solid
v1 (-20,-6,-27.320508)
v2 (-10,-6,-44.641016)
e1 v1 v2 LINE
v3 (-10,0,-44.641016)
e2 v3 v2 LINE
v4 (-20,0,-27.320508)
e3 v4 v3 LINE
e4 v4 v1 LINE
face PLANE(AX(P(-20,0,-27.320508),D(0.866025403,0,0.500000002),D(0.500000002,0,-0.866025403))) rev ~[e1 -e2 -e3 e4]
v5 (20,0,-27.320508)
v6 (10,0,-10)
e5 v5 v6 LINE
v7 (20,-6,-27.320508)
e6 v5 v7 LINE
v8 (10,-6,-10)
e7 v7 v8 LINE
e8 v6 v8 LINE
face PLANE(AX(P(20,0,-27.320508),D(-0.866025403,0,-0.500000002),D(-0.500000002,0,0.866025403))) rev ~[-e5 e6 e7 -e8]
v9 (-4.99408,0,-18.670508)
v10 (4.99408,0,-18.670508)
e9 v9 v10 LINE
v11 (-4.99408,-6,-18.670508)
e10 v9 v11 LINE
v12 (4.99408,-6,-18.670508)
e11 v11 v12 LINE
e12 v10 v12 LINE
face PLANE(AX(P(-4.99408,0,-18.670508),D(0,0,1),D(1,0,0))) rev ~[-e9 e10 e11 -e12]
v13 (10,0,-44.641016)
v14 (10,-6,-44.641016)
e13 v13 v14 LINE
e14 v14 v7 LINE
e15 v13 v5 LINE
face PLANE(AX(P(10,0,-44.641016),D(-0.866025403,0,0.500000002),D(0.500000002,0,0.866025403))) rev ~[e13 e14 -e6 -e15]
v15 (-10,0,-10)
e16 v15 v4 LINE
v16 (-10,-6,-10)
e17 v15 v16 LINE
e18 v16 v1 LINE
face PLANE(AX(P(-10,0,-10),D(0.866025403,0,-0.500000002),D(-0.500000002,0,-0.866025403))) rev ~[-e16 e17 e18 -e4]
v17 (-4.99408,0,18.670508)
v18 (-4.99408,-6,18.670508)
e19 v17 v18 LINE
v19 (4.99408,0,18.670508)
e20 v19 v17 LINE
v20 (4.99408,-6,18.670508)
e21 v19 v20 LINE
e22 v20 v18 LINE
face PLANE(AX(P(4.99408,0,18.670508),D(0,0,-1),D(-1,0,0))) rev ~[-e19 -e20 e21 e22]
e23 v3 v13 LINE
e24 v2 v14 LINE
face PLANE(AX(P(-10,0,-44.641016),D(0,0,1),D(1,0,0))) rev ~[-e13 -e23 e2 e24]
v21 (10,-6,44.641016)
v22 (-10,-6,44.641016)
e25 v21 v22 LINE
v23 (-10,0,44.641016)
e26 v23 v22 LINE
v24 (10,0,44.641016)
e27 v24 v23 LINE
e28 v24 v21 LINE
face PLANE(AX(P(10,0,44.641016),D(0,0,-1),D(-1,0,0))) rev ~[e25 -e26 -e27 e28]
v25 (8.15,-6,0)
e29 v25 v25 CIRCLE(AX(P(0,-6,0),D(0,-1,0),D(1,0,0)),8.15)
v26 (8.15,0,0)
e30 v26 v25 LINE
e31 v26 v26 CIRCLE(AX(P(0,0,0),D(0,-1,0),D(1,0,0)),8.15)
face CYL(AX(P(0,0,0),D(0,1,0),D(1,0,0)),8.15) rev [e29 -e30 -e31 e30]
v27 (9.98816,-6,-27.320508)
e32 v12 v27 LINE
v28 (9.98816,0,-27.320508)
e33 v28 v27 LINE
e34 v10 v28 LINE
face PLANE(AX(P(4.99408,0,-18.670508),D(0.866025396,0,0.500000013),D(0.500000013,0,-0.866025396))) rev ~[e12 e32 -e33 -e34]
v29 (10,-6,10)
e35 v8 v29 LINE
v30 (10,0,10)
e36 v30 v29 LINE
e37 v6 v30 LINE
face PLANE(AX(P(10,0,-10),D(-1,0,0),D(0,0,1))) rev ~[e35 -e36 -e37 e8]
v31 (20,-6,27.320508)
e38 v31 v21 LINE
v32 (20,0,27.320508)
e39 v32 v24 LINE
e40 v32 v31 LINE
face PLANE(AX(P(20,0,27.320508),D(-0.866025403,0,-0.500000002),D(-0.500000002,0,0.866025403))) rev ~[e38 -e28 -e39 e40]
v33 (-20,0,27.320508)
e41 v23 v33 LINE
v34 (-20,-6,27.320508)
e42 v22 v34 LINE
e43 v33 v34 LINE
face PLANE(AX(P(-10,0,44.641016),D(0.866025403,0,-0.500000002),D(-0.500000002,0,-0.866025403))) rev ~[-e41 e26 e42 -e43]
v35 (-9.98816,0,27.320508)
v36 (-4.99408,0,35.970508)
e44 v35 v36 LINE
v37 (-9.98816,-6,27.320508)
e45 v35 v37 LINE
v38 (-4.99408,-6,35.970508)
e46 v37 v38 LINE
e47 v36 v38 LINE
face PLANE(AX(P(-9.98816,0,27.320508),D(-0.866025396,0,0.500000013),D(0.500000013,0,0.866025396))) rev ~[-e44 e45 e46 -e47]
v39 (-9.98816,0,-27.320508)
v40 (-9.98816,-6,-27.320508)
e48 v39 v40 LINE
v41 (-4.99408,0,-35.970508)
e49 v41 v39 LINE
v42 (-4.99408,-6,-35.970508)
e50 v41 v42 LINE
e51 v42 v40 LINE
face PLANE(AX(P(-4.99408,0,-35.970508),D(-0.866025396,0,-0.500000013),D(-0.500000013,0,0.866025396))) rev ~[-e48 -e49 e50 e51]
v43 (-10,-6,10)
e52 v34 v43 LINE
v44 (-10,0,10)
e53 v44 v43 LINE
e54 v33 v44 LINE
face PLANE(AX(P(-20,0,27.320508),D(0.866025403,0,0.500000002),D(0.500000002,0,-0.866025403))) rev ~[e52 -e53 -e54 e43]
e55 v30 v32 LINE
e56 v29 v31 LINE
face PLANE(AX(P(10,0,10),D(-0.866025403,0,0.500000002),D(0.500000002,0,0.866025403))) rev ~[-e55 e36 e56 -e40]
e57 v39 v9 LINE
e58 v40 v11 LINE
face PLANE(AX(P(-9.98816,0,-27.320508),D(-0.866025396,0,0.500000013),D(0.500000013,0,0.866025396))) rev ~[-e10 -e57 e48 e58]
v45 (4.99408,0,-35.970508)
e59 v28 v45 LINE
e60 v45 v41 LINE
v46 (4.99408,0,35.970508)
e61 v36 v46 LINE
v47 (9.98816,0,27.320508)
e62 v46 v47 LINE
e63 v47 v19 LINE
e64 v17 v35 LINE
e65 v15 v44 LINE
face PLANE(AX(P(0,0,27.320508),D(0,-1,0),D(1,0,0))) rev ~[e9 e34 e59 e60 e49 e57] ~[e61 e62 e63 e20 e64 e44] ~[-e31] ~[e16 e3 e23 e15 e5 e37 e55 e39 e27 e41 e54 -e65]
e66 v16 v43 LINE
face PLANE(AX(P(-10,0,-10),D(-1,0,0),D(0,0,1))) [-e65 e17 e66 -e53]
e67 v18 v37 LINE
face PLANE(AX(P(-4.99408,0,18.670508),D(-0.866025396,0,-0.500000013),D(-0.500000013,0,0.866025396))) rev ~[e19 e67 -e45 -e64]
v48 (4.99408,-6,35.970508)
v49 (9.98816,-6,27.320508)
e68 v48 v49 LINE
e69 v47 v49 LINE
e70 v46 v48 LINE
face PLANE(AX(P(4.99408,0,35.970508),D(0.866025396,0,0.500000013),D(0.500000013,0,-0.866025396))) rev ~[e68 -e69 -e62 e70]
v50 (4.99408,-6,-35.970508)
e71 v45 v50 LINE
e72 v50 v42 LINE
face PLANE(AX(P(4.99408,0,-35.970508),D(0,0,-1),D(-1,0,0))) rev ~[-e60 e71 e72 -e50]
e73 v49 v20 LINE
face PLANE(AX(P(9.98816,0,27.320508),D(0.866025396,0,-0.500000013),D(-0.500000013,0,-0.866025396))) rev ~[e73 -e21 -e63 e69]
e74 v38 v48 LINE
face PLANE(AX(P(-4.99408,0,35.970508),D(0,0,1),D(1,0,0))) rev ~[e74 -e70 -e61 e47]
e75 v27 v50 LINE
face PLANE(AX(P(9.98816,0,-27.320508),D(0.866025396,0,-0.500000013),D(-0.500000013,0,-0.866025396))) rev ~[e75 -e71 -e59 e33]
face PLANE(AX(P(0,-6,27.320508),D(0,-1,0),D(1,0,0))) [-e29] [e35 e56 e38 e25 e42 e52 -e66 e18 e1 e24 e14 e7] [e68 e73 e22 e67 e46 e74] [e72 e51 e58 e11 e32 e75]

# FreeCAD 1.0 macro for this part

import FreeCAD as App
import Part
import Sketcher
Q = App.Units.Quantity

doc = App.newDocument("Part")
params = doc.addObject("Spreadsheet::Sheet", "Params")
for row, (alias, value) in enumerate([
    ("sketch1_diameter", "16.3 mm"),
    ("sketch1_width", "20 mm"),
    ("sketch1_length", "20 mm"),
    ("pad1_length", "6 mm"),
], start=1):
    params.set(f"A{row}", alias)
    params.set(f"B{row}", "=" + value)
    params.setAlias(f"B{row}", alias)

body = doc.addObject("PartDesign::Body", "Body")

sketch1 = body.newObject("Sketcher::SketchObject", "Sketch")
sketch1.AttachmentSupport = (doc.getObject("XZ_Plane"), [""])
sketch1.MapMode = "FlatFace"
sketch1.addGeometry([
    Part.LineSegment(App.Vector(-20, 27, 0), App.Vector(-10, 10, 0)),
    Part.LineSegment(App.Vector(-10, 10, 0), App.Vector(-10, -10, 0)),
    Part.LineSegment(App.Vector(-10, -10, 0), App.Vector(-20, -27, 0)),
    Part.LineSegment(App.Vector(-20, -27, 0), App.Vector(-10, -45, 0)),
    Part.LineSegment(App.Vector(-10, -45, 0), App.Vector(10, -45, 0)),
    Part.LineSegment(App.Vector(10, -45, 0), App.Vector(20, -27, 0)),
    Part.LineSegment(App.Vector(20, -27, 0), App.Vector(10, -10, 0)),
    Part.LineSegment(App.Vector(10, -10, 0), App.Vector(10, 10, 0)),
    Part.LineSegment(App.Vector(10, 10, 0), App.Vector(20, 27, 0)),
    Part.LineSegment(App.Vector(20, 27, 0), App.Vector(10, 45, 0)),
    Part.LineSegment(App.Vector(10, 45, 0), App.Vector(-10, 45, 0)),
    Part.LineSegment(App.Vector(-10, 45, 0), App.Vector(-20, 27, 0)),
    Part.LineSegment(App.Vector(10, -27, 0), App.Vector(5, -36, 0)),
    Part.LineSegment(App.Vector(5, -36, 0), App.Vector(-5, -36, 0)),
    Part.LineSegment(App.Vector(-5, -36, 0), App.Vector(-10, -27, 0)),
    Part.LineSegment(App.Vector(-10, -27, 0), App.Vector(-5, -19, 0)),
    Part.LineSegment(App.Vector(-5, -19, 0), App.Vector(5, -19, 0)),
    Part.LineSegment(App.Vector(5, -19, 0), App.Vector(10, -27, 0)),
    Part.Circle(App.Vector(0, 0, 0), App.Vector(0, 0, 1), 8),
    Part.LineSegment(App.Vector(-5, 36, 0), App.Vector(5, 36, 0)),
    Part.LineSegment(App.Vector(5, 36, 0), App.Vector(10, 27, 0)),
    Part.LineSegment(App.Vector(10, 27, 0), App.Vector(5, 19, 0)),
    Part.LineSegment(App.Vector(5, 19, 0), App.Vector(-5, 19, 0)),
    Part.LineSegment(App.Vector(-5, 19, 0), App.Vector(-10, 27, 0)),
    Part.LineSegment(App.Vector(-10, 27, 0), App.Vector(-5, 36, 0)),
], False)
sketch1.addConstraint([
    Sketcher.Constraint("Coincident", 0, 2, 1, 1),
    Sketcher.Constraint("Coincident", 1, 2, 2, 1),
    Sketcher.Constraint("Coincident", 2, 2, 3, 1),
    Sketcher.Constraint("Coincident", 3, 2, 4, 1),
    Sketcher.Constraint("Coincident", 4, 2, 5, 1),
    Sketcher.Constraint("Coincident", 5, 2, 6, 1),
    Sketcher.Constraint("Coincident", 6, 2, 7, 1),
    Sketcher.Constraint("Coincident", 7, 2, 8, 1),
    Sketcher.Constraint("Coincident", 8, 2, 9, 1),
    Sketcher.Constraint("Coincident", 9, 2, 10, 1),
    Sketcher.Constraint("Coincident", 10, 2, 11, 1),
    Sketcher.Constraint("Coincident", 11, 2, 0, 1),
    Sketcher.Constraint("Coincident", 12, 2, 13, 1),
    Sketcher.Constraint("Coincident", 13, 2, 14, 1),
    Sketcher.Constraint("Coincident", 14, 2, 15, 1),
    Sketcher.Constraint("Coincident", 15, 2, 16, 1),
    Sketcher.Constraint("Coincident", 16, 2, 17, 1),
    Sketcher.Constraint("Coincident", 17, 2, 12, 1),
    Sketcher.Constraint("Coincident", 19, 2, 20, 1),
    Sketcher.Constraint("Coincident", 20, 2, 21, 1),
    Sketcher.Constraint("Coincident", 21, 2, 22, 1),
    Sketcher.Constraint("Coincident", 22, 2, 23, 1),
    Sketcher.Constraint("Coincident", 23, 2, 24, 1),
    Sketcher.Constraint("Coincident", 24, 2, 19, 1),
    Sketcher.Constraint("Vertical", 1),
    Sketcher.Constraint("Horizontal", 4),
    Sketcher.Constraint("Vertical", 7),
    Sketcher.Constraint("Horizontal", 10),
    Sketcher.Constraint("Horizontal", 13),
    Sketcher.Constraint("Horizontal", 16),
    Sketcher.Constraint("Horizontal", 19),
    Sketcher.Constraint("Horizontal", 22),
    Sketcher.Constraint("Coincident", 18, 3, -1, 1),
    Sketcher.Constraint("Symmetric", 0, 2, 6, 2, -1, 1),
    Sketcher.Constraint("Symmetric", 2, 2, 8, 2, -1, 1),
    Sketcher.Constraint("Symmetric", 3, 2, 9, 2, -1, 1),
    Sketcher.Constraint("Symmetric", 5, 2, 11, 2, -1, 1),
    Sketcher.Constraint("Symmetric", 13, 2, 19, 2, -1, 1),
    Sketcher.Constraint("Symmetric", 14, 2, 20, 2, -1, 1),
    Sketcher.Constraint("Symmetric", 15, 2, 21, 2, -1, 1),
    Sketcher.Constraint("Symmetric", 17, 2, 23, 2, -1, 1),
    Sketcher.Constraint("Symmetric", 2, 2, 5, 2, -2),
    Sketcher.Constraint("Symmetric", 14, 2, 17, 2, -2),
    Sketcher.Constraint("Parallel", 0, 3),
    Sketcher.Constraint("Parallel", 2, 5),
    Sketcher.Constraint("Parallel", 5, 8),
    Sketcher.Constraint("Parallel", 8, 11),
    Sketcher.Constraint("Parallel", 11, 12),
    Sketcher.Constraint("Parallel", 9, 14),
    Sketcher.Constraint("Parallel", 12, 15),
    Sketcher.Constraint("Parallel", 14, 17),
    Sketcher.Constraint("Parallel", 20, 23),
    Sketcher.Constraint("Parallel", 21, 24),
    Sketcher.Constraint("Horizontal", 1, 2, 6, 2),
    Sketcher.Constraint("Horizontal", 5, 2, 14, 2),
    Sketcher.Constraint("Vertical", 1, 2, 3, 2),
    Sketcher.Constraint("Vertical", 13, 2, 15, 2),
    Sketcher.Constraint("Equal", 10, 1),
    Sketcher.Constraint("Diameter", 18, Q("16.3 mm")),
    Sketcher.Constraint("DistanceX", 4, 1, 4, 2, Q("20 mm")),
    Sketcher.Constraint("Angle", 0, Q("-60 deg")),
    Sketcher.Constraint("Distance", 0, Q("20 mm")),
    Sketcher.Constraint("DistanceY", 13, 2, 15, 2, Q("17.3 mm")),
    Sketcher.Constraint("DistanceX", 13, 2, 13, 1, Q("9.98816 mm")),
])
sketch1.setExpression("Constraints[58]", "Params.sketch1_diameter")
sketch1.setExpression("Constraints[59]", "Params.sketch1_width")
sketch1.setExpression("Constraints[61]", "Params.sketch1_length")
pad1 = body.newObject("PartDesign::Pad", "Pad")
pad1.Profile = sketch1
pad1.setExpression("Length", "Params.pad1_length")

doc.recompute()
